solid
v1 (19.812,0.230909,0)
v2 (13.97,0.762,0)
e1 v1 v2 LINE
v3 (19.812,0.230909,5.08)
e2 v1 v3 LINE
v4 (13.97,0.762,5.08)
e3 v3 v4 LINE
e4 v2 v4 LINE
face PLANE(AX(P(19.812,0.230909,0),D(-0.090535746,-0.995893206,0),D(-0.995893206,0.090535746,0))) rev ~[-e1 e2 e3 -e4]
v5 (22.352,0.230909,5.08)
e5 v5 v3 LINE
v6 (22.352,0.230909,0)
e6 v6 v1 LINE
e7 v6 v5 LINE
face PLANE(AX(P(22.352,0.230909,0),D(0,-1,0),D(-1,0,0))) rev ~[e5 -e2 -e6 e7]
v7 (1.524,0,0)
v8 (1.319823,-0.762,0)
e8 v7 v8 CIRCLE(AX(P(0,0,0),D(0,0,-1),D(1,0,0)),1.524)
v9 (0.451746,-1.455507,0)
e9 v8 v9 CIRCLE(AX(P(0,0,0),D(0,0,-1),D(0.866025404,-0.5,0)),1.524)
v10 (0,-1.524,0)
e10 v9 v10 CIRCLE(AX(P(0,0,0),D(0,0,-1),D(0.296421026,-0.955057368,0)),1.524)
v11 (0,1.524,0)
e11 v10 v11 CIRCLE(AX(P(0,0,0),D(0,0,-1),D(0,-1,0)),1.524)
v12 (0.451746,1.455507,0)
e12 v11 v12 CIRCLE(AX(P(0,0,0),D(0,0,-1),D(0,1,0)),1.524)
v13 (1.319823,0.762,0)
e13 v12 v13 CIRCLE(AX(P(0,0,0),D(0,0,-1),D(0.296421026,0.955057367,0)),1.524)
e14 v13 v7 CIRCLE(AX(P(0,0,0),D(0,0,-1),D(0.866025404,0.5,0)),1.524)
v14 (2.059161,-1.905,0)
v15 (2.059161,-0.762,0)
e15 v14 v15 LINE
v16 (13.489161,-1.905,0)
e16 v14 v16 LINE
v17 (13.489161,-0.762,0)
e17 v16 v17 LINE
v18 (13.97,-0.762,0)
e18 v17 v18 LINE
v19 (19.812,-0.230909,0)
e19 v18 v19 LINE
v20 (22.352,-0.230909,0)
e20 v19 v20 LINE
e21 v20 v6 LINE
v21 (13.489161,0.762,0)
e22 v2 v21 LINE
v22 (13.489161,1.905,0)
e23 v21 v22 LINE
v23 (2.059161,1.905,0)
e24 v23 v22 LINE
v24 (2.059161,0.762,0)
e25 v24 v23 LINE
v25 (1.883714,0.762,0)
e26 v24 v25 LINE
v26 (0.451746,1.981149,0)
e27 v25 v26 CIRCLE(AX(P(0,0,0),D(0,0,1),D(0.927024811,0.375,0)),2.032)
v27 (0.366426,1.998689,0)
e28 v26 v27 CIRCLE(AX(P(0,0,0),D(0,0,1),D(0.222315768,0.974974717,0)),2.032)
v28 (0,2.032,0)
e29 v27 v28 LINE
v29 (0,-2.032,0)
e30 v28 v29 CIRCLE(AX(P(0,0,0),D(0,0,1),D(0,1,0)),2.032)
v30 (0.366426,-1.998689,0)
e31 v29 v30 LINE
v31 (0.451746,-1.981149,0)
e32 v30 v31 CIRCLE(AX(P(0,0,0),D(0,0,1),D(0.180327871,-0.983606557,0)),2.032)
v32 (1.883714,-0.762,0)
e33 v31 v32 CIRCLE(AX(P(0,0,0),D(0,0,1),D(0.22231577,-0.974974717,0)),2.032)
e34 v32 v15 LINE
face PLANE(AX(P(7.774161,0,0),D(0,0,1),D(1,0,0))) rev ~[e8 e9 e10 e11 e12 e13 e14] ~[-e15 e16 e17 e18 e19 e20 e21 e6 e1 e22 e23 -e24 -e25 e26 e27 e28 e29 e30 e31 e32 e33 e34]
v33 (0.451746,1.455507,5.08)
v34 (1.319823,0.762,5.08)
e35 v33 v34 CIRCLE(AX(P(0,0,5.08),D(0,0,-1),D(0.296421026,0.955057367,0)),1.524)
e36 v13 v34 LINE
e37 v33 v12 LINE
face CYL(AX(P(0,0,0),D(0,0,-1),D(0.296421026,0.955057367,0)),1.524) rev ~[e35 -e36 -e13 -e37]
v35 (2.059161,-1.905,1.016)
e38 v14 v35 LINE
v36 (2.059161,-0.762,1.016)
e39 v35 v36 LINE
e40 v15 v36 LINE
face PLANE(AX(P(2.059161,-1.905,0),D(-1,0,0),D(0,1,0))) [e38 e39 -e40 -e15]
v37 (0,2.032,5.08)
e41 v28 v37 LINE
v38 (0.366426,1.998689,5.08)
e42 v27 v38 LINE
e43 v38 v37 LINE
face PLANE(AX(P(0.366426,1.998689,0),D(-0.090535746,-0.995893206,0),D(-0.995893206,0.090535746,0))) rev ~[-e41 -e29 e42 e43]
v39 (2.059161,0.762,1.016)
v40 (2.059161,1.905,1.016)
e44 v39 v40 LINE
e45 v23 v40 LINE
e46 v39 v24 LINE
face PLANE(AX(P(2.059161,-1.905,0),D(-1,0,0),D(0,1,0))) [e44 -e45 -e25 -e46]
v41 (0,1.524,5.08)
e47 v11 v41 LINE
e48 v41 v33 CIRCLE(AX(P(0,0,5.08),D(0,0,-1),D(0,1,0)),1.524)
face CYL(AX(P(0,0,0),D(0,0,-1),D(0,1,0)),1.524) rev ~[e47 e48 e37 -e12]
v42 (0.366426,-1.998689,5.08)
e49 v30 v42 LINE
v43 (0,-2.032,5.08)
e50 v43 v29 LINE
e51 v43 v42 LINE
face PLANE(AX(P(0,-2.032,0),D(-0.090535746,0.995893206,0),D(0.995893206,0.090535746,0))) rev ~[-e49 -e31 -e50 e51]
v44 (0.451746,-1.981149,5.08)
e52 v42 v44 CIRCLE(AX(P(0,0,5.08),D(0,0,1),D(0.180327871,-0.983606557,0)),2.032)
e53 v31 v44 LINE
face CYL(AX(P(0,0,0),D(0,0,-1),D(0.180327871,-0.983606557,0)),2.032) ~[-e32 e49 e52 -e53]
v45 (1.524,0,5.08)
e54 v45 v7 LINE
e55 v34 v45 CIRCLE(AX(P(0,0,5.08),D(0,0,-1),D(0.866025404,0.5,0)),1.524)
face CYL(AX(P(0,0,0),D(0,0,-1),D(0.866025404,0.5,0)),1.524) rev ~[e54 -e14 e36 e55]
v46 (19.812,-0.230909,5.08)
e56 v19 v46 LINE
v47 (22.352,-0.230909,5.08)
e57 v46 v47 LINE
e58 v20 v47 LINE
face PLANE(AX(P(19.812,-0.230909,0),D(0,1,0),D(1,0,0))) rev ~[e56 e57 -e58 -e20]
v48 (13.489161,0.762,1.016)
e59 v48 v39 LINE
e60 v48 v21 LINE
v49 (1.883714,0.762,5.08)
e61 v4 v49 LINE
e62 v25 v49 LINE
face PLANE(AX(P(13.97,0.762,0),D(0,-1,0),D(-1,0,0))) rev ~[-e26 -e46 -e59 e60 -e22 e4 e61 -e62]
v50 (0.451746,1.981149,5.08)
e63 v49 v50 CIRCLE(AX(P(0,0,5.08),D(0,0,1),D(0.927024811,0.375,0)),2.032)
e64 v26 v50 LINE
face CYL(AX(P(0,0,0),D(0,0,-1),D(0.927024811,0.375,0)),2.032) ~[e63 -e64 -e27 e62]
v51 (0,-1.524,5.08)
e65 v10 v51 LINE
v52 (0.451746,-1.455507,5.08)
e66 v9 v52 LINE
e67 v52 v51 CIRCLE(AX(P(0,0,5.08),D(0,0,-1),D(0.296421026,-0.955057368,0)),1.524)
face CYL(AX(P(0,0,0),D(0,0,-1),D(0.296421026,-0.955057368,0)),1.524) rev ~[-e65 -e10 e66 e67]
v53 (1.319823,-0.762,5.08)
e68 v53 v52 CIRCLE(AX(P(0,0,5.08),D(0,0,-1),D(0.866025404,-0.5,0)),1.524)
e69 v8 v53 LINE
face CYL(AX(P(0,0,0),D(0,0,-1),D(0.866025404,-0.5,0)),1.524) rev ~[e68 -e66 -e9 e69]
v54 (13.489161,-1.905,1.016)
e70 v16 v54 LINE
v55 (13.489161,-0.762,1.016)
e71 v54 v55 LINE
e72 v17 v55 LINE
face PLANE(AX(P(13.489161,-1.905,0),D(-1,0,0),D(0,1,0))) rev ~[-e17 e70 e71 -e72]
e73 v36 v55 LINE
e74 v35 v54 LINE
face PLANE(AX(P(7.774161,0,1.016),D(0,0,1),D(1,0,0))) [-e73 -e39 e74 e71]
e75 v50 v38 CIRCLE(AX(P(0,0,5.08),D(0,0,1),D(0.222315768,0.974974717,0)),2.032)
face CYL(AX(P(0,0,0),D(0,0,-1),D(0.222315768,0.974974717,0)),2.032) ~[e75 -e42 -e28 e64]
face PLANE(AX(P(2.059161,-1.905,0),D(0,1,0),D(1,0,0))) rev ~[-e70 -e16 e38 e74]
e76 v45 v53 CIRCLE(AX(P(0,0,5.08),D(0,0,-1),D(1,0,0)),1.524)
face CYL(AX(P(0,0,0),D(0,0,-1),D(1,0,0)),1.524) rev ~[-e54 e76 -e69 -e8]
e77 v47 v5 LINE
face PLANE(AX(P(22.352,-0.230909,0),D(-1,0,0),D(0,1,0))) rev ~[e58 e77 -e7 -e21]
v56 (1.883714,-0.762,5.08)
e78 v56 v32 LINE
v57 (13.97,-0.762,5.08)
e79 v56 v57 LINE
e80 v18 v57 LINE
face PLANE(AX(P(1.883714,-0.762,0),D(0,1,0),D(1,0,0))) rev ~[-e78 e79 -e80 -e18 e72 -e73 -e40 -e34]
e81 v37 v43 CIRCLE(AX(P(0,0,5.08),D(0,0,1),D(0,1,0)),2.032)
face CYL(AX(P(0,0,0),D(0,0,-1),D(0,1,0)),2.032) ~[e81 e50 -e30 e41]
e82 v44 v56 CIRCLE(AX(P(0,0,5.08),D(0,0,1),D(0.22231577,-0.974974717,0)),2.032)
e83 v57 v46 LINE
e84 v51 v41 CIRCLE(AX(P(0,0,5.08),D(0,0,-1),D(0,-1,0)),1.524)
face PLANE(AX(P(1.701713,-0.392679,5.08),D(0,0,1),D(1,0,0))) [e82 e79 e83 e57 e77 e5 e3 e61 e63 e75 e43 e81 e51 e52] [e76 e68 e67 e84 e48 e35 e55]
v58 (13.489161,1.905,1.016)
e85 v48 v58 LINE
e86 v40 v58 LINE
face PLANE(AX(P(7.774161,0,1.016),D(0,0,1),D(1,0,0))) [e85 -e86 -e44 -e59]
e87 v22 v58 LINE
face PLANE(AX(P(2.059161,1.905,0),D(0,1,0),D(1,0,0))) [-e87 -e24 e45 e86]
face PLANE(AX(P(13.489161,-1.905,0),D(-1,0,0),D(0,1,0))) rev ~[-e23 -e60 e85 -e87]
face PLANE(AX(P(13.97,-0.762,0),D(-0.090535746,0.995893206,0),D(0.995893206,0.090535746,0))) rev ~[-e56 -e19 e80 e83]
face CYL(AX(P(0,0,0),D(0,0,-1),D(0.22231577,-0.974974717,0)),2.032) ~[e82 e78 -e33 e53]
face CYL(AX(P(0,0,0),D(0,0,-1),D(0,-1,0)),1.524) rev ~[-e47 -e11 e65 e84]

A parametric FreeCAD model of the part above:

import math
import FreeCAD as App
import Part
import Sketcher
from FreeCAD import Vector
Q = App.Units.Quantity


def add_polygon(sketch, points):
    """Adds a closed chain of lines whose ends are joined by coincident constraints."""
    first, n = sketch.GeometryCount, len(points)
    for a, b in zip(points, points[1:] + points[:1]):
        sketch.addGeometry(Part.LineSegment(App.Vector(*a, 0), App.Vector(*b, 0)), False)
    for i in range(n):
        sketch.addConstraint(Sketcher.Constraint("Coincident", first + i, 2, first + (i + 1) % n, 1))

doc = App.newDocument("Part")
body = doc.addObject("PartDesign::Body", "Body")

sketch1 = body.newObject("Sketcher::SketchObject", "Sketch")
sketch1.AttachmentSupport = (doc.getObject("XY_Plane"), [""])
sketch1.MapMode = "FlatFace"
sketch1.addGeometry([
    Part.ArcOfCircle(Part.Circle(Vector(0, 0, 0), Vector(0, 0, 1), 2.03), math.radians(22), math.radians(77)),
    Part.ArcOfCircle(Part.Circle(Vector(0, 0, 0), Vector(0, 0, 1), 2.03), math.radians(77.15), math.radians(79.61)),
    Part.LineSegment(Vector(0.37, 2, 0), Vector(0, 2.03, 0)),
    Part.ArcOfCircle(Part.Circle(Vector(0, 0, 0), Vector(0, 0, 1), 2.03), math.radians(90), math.radians(270)),
    Part.LineSegment(Vector(0, -2.03, 0), Vector(0.37, -2, 0)),
    Part.ArcOfCircle(Part.Circle(Vector(0, 0, 0), Vector(0, 0, 1), 2.03), math.radians(-79.61), math.radians(-77.15)),
    Part.ArcOfCircle(Part.Circle(Vector(0, 0, 0), Vector(0, 0, 1), 2.03), math.radians(-77), math.radians(-22)),
    Part.LineSegment(Vector(1.88, -0.76, 0), Vector(13.97, -0.76, 0)),
    Part.LineSegment(Vector(13.97, -0.76, 0), Vector(19.81, -0.23, 0)),
    Part.LineSegment(Vector(19.81, -0.23, 0), Vector(22.35, -0.23, 0)),
    Part.LineSegment(Vector(22.35, -0.23, 0), Vector(22.35, 0.23, 0)),
    Part.LineSegment(Vector(22.35, 0.23, 0), Vector(19.81, 0.23, 0)),
    Part.LineSegment(Vector(19.81, 0.23, 0), Vector(13.97, 0.76, 0)),
    Part.LineSegment(Vector(13.97, 0.76, 0), Vector(1.88, 0.76, 0)),
    Part.ArcOfCircle(Part.Circle(Vector(0, 0, 0), Vector(0, 0, 1), 1.52), math.radians(0), math.radians(30)),
    Part.ArcOfCircle(Part.Circle(Vector(0, 0, 0), Vector(0, 0, 1), 1.52), math.radians(-30), math.radians(0)),
    Part.ArcOfCircle(Part.Circle(Vector(0, 0, 0), Vector(0, 0, 1), 1.52), math.radians(-73), math.radians(-30)),
    Part.ArcOfCircle(Part.Circle(Vector(0, 0, 0), Vector(0, 0, 1), 1.52), math.radians(-90), math.radians(-72.76)),
    Part.ArcOfCircle(Part.Circle(Vector(0, 0, 0), Vector(0, 0, 1), 1.52), math.radians(90), math.radians(270)),
    Part.ArcOfCircle(Part.Circle(Vector(0, 0, 0), Vector(0, 0, 1), 1.52), math.radians(72.76), math.radians(90)),
    Part.ArcOfCircle(Part.Circle(Vector(0, 0, 0), Vector(0, 0, 1), 1.52), math.radians(30), math.radians(73)),
], False)
sketch1.addConstraint([
    Sketcher.Constraint("Tangent", 0, 2, 1, 1),
    Sketcher.Constraint("Coincident", 1, 2, 2, 1),
    Sketcher.Constraint("Coincident", 2, 2, 3, 1),
    Sketcher.Constraint("Coincident", 3, 2, 4, 1),
    Sketcher.Constraint("Coincident", 4, 2, 5, 1),
    Sketcher.Constraint("Tangent", 5, 2, 6, 1),
    Sketcher.Constraint("Coincident", 6, 2, 7, 1),
    Sketcher.Constraint("Coincident", 7, 2, 8, 1),
    Sketcher.Constraint("Coincident", 8, 2, 9, 1),
    Sketcher.Constraint("Coincident", 9, 2, 10, 1),
    Sketcher.Constraint("Coincident", 10, 2, 11, 1),
    Sketcher.Constraint("Coincident", 11, 2, 12, 1),
    Sketcher.Constraint("Coincident", 12, 2, 13, 1),
    Sketcher.Constraint("Coincident", 13, 2, 0, 1),
    Sketcher.Constraint("Tangent", 14, 1, 15, 2),
    Sketcher.Constraint("Tangent", 15, 1, 16, 2),
    Sketcher.Constraint("Tangent", 16, 1, 17, 2),
    Sketcher.Constraint("Tangent", 17, 1, 18, 2),
    Sketcher.Constraint("Tangent", 18, 1, 19, 2),
    Sketcher.Constraint("Tangent", 19, 1, 20, 2),
    Sketcher.Constraint("Tangent", 20, 1, 14, 2),
    Sketcher.Constraint("Horizontal", 7),
    Sketcher.Constraint("Horizontal", 9),
    Sketcher.Constraint("Vertical", 10),
    Sketcher.Constraint("Horizontal", 11),
    Sketcher.Constraint("Horizontal", 13),
    Sketcher.Constraint("Coincident", 0, 3, -1, 1),
    Sketcher.Constraint("Coincident", 3, 3, -1, 1),
    Sketcher.Constraint("Coincident", 5, 3, -1, 1),
    Sketcher.Constraint("Coincident", 14, 3, -1, 1),
    Sketcher.Constraint("Coincident", 16, 3, -1, 1),
    Sketcher.Constraint("Coincident", 18, 3, -1, 1),
    Sketcher.Constraint("Equal", 0, 1),
    Sketcher.Constraint("Equal", 1, 3),
    Sketcher.Constraint("Equal", 3, 5),
    Sketcher.Constraint("Equal", 5, 6),
    Sketcher.Constraint("Symmetric", 8, 2, 11, 2, -1),
    Sketcher.Constraint("Symmetric", 7, 2, 12, 2, -1),
    Sketcher.Constraint("PointOnObject", 2, 2, -2),
    Sketcher.Constraint("PointOnObject", 3, 2, -2),
    Sketcher.Constraint("PointOnObject", 14, 1, -1),
    Sketcher.Constraint("PointOnObject", 17, 1, -2),
    Sketcher.Constraint("PointOnObject", 18, 1, -2),
    Sketcher.Constraint("Parallel", 4, 8),
    Sketcher.Constraint("Parallel", 2, 12),
    Sketcher.Constraint("Horizontal", 7, 2, 15, 1),
    Sketcher.Constraint("Horizontal", 13, 2, 20, 1),
    Sketcher.Constraint("Vertical", 0, 2, 5, 2),
    Sketcher.Constraint("Vertical", 5, 2, 16, 1),
    Sketcher.Constraint("Vertical", 16, 1, 19, 1),
    Sketcher.Constraint("Radius", 0, Q("0.08 in")),
    Sketcher.Constraint("Radius", 14, Q("0.06 in")),
    Sketcher.Constraint("DistanceX", 9, 1, 9, 2, Q("0.1 in")),
    Sketcher.Constraint("DistanceY", 6, 2, -1, 1, Q("0.03 in")),
    Sketcher.Constraint("DistanceX", -1, 1, 7, 2, Q("0.55 in")),
    Sketcher.Constraint("DistanceX", -1, 1, 8, 2, Q("0.78 in")),
    Sketcher.Constraint("DistanceY", 10, 1, 10, 2, 0.461818),
    Sketcher.Constraint("DistanceY", -1, 1, 0, 2, 1.981149),
])
pad1 = body.newObject("PartDesign::Pad", "Pad")
pad1.Profile = sketch1
pad1.Length = Q("0.2 in")

sketch2 = body.newObject("Sketcher::SketchObject", "Sketch001")
sketch2.AttachmentSupport = (doc.getObject("XY_Plane"), [""])
sketch2.MapMode = "FlatFace"
sketch2.addGeometry([
    Part.ArcOfCircle(Part.Circle(Vector(0, 0, 0), Vector(0, 0, 1), 1.52), math.radians(-30), math.radians(0)),
    Part.LineSegment(Vector(1.32, -0.76, 0), Vector(1.88, -0.76, 0)),
    Part.ArcOfCircle(Part.Circle(Vector(0, 0, 0), Vector(0, 0, 1), 2.03), math.radians(-22), math.radians(0)),
    Part.LineSegment(Vector(2.03, 0, 0), Vector(1.52, 0, 0)),
    Part.ArcOfCircle(Part.Circle(Vector(0, 0, 0), Vector(0, 0, 1), 1.52), math.radians(72.76), math.radians(90)),
    Part.LineSegment(Vector(0.45, 1.46, 0), Vector(0.45, 1.98, 0)),
    Part.ArcOfCircle(Part.Circle(Vector(0, 0, 0), Vector(0, 0, 1), 2.03), math.radians(77.15), math.radians(79.61)),
    Part.LineSegment(Vector(0.37, 2, 0), Vector(0, 2.03, 0)),
    Part.ArcOfCircle(Part.Circle(Vector(0, 0, 0), Vector(0, 0, 1), 2.03), math.radians(90), math.radians(270)),
    Part.LineSegment(Vector(0, -2.03, 0), Vector(0, -1.52, 0)),
    Part.ArcOfCircle(Part.Circle(Vector(0, 0, 0), Vector(0, 0, 1), 1.52), math.radians(90), math.radians(270)),
], False)
sketch2.addConstraint([
    Sketcher.Constraint("Coincident", 0, 1, 1, 1),
    Sketcher.Constraint("Coincident", 1, 2, 2, 1),
    Sketcher.Constraint("Coincident", 2, 2, 3, 1),
    Sketcher.Constraint("Coincident", 3, 2, 0, 2),
    Sketcher.Constraint("Coincident", 4, 1, 5, 1),
    Sketcher.Constraint("Coincident", 5, 2, 6, 1),
    Sketcher.Constraint("Coincident", 6, 2, 7, 1),
    Sketcher.Constraint("Coincident", 7, 2, 8, 1),
    Sketcher.Constraint("Coincident", 8, 2, 9, 1),
    Sketcher.Constraint("Coincident", 9, 2, 10, 2),
    Sketcher.Constraint("Tangent", 10, 1, 4, 2),
    Sketcher.Constraint("Horizontal", 1),
    Sketcher.Constraint("Horizontal", 3),
    Sketcher.Constraint("Vertical", 5),
    Sketcher.Constraint("Vertical", 9),
    Sketcher.Constraint("Coincident", 0, 3, -1, 1),
    Sketcher.Constraint("Coincident", 2, 3, -1, 1),
    Sketcher.Constraint("Coincident", 4, 3, -1, 1),
    Sketcher.Constraint("Coincident", 6, 3, -1, 1),
    Sketcher.Constraint("Coincident", 8, 3, -1, 1),
    Sketcher.Constraint("Equal", 0, 4),
    Sketcher.Constraint("Equal", 2, 6),
    Sketcher.Constraint("Equal", 6, 8),
    Sketcher.Constraint("Equal", 4, 10),
    Sketcher.Constraint("PointOnObject", 2, 2, -1),
    Sketcher.Constraint("PointOnObject", 7, 2, -2),
    Sketcher.Constraint("PointOnObject", 8, 2, -2),
    Sketcher.Constraint("PointOnObject", 10, 1, -2),
    Sketcher.Constraint("Radius", 0, Q("0.06 in")),
    Sketcher.Constraint("Radius", 2, Q("0.08 in")),
    Sketcher.Constraint("DistanceY", 0, 1, -1, 1, Q("0.03 in")),
    Sketcher.Constraint("DistanceY", 5, 1, 5, 2, 0.525641),
    Sketcher.Constraint("DistanceY", -1, 1, 6, 2, 1.998689),
])
pad2 = body.newObject("PartDesign::Pad", "Pad001")
pad2.Profile = sketch2
pad2.Length = Q("0.198 in")

sketch3 = body.newObject("Sketcher::SketchObject", "Sketch002")
sketch3.AttachmentSupport = (doc.getObject("XY_Plane"), [""])
sketch3.MapMode = "FlatFace"
add_polygon(sketch3, [(2.1, 1.9), (2.1, -1.9), (13.5, -1.9), (13.5, 1.9)])
sketch3.addConstraint([
    Sketcher.Constraint("Vertical", 0),
    Sketcher.Constraint("Horizontal", 1),
    Sketcher.Constraint("Vertical", 2),
    Sketcher.Constraint("Horizontal", 3),
    Sketcher.Constraint("DistanceX", 1, 1, 1, 2, Q("0.45 in")),
    Sketcher.Constraint("DistanceY", 0, 2, 0, 1, Q("0.15 in")),
    Sketcher.Constraint("DistanceY", 0, 2, -1, 1, Q("0.075 in")),
    Sketcher.Constraint("DistanceX", -1, 1, 0, 2, 2.059161),
])
pad3 = body.newObject("PartDesign::Pad", "Pad002")
pad3.Profile = sketch3
pad3.Length = Q("0.04 in")

doc.recompute()
